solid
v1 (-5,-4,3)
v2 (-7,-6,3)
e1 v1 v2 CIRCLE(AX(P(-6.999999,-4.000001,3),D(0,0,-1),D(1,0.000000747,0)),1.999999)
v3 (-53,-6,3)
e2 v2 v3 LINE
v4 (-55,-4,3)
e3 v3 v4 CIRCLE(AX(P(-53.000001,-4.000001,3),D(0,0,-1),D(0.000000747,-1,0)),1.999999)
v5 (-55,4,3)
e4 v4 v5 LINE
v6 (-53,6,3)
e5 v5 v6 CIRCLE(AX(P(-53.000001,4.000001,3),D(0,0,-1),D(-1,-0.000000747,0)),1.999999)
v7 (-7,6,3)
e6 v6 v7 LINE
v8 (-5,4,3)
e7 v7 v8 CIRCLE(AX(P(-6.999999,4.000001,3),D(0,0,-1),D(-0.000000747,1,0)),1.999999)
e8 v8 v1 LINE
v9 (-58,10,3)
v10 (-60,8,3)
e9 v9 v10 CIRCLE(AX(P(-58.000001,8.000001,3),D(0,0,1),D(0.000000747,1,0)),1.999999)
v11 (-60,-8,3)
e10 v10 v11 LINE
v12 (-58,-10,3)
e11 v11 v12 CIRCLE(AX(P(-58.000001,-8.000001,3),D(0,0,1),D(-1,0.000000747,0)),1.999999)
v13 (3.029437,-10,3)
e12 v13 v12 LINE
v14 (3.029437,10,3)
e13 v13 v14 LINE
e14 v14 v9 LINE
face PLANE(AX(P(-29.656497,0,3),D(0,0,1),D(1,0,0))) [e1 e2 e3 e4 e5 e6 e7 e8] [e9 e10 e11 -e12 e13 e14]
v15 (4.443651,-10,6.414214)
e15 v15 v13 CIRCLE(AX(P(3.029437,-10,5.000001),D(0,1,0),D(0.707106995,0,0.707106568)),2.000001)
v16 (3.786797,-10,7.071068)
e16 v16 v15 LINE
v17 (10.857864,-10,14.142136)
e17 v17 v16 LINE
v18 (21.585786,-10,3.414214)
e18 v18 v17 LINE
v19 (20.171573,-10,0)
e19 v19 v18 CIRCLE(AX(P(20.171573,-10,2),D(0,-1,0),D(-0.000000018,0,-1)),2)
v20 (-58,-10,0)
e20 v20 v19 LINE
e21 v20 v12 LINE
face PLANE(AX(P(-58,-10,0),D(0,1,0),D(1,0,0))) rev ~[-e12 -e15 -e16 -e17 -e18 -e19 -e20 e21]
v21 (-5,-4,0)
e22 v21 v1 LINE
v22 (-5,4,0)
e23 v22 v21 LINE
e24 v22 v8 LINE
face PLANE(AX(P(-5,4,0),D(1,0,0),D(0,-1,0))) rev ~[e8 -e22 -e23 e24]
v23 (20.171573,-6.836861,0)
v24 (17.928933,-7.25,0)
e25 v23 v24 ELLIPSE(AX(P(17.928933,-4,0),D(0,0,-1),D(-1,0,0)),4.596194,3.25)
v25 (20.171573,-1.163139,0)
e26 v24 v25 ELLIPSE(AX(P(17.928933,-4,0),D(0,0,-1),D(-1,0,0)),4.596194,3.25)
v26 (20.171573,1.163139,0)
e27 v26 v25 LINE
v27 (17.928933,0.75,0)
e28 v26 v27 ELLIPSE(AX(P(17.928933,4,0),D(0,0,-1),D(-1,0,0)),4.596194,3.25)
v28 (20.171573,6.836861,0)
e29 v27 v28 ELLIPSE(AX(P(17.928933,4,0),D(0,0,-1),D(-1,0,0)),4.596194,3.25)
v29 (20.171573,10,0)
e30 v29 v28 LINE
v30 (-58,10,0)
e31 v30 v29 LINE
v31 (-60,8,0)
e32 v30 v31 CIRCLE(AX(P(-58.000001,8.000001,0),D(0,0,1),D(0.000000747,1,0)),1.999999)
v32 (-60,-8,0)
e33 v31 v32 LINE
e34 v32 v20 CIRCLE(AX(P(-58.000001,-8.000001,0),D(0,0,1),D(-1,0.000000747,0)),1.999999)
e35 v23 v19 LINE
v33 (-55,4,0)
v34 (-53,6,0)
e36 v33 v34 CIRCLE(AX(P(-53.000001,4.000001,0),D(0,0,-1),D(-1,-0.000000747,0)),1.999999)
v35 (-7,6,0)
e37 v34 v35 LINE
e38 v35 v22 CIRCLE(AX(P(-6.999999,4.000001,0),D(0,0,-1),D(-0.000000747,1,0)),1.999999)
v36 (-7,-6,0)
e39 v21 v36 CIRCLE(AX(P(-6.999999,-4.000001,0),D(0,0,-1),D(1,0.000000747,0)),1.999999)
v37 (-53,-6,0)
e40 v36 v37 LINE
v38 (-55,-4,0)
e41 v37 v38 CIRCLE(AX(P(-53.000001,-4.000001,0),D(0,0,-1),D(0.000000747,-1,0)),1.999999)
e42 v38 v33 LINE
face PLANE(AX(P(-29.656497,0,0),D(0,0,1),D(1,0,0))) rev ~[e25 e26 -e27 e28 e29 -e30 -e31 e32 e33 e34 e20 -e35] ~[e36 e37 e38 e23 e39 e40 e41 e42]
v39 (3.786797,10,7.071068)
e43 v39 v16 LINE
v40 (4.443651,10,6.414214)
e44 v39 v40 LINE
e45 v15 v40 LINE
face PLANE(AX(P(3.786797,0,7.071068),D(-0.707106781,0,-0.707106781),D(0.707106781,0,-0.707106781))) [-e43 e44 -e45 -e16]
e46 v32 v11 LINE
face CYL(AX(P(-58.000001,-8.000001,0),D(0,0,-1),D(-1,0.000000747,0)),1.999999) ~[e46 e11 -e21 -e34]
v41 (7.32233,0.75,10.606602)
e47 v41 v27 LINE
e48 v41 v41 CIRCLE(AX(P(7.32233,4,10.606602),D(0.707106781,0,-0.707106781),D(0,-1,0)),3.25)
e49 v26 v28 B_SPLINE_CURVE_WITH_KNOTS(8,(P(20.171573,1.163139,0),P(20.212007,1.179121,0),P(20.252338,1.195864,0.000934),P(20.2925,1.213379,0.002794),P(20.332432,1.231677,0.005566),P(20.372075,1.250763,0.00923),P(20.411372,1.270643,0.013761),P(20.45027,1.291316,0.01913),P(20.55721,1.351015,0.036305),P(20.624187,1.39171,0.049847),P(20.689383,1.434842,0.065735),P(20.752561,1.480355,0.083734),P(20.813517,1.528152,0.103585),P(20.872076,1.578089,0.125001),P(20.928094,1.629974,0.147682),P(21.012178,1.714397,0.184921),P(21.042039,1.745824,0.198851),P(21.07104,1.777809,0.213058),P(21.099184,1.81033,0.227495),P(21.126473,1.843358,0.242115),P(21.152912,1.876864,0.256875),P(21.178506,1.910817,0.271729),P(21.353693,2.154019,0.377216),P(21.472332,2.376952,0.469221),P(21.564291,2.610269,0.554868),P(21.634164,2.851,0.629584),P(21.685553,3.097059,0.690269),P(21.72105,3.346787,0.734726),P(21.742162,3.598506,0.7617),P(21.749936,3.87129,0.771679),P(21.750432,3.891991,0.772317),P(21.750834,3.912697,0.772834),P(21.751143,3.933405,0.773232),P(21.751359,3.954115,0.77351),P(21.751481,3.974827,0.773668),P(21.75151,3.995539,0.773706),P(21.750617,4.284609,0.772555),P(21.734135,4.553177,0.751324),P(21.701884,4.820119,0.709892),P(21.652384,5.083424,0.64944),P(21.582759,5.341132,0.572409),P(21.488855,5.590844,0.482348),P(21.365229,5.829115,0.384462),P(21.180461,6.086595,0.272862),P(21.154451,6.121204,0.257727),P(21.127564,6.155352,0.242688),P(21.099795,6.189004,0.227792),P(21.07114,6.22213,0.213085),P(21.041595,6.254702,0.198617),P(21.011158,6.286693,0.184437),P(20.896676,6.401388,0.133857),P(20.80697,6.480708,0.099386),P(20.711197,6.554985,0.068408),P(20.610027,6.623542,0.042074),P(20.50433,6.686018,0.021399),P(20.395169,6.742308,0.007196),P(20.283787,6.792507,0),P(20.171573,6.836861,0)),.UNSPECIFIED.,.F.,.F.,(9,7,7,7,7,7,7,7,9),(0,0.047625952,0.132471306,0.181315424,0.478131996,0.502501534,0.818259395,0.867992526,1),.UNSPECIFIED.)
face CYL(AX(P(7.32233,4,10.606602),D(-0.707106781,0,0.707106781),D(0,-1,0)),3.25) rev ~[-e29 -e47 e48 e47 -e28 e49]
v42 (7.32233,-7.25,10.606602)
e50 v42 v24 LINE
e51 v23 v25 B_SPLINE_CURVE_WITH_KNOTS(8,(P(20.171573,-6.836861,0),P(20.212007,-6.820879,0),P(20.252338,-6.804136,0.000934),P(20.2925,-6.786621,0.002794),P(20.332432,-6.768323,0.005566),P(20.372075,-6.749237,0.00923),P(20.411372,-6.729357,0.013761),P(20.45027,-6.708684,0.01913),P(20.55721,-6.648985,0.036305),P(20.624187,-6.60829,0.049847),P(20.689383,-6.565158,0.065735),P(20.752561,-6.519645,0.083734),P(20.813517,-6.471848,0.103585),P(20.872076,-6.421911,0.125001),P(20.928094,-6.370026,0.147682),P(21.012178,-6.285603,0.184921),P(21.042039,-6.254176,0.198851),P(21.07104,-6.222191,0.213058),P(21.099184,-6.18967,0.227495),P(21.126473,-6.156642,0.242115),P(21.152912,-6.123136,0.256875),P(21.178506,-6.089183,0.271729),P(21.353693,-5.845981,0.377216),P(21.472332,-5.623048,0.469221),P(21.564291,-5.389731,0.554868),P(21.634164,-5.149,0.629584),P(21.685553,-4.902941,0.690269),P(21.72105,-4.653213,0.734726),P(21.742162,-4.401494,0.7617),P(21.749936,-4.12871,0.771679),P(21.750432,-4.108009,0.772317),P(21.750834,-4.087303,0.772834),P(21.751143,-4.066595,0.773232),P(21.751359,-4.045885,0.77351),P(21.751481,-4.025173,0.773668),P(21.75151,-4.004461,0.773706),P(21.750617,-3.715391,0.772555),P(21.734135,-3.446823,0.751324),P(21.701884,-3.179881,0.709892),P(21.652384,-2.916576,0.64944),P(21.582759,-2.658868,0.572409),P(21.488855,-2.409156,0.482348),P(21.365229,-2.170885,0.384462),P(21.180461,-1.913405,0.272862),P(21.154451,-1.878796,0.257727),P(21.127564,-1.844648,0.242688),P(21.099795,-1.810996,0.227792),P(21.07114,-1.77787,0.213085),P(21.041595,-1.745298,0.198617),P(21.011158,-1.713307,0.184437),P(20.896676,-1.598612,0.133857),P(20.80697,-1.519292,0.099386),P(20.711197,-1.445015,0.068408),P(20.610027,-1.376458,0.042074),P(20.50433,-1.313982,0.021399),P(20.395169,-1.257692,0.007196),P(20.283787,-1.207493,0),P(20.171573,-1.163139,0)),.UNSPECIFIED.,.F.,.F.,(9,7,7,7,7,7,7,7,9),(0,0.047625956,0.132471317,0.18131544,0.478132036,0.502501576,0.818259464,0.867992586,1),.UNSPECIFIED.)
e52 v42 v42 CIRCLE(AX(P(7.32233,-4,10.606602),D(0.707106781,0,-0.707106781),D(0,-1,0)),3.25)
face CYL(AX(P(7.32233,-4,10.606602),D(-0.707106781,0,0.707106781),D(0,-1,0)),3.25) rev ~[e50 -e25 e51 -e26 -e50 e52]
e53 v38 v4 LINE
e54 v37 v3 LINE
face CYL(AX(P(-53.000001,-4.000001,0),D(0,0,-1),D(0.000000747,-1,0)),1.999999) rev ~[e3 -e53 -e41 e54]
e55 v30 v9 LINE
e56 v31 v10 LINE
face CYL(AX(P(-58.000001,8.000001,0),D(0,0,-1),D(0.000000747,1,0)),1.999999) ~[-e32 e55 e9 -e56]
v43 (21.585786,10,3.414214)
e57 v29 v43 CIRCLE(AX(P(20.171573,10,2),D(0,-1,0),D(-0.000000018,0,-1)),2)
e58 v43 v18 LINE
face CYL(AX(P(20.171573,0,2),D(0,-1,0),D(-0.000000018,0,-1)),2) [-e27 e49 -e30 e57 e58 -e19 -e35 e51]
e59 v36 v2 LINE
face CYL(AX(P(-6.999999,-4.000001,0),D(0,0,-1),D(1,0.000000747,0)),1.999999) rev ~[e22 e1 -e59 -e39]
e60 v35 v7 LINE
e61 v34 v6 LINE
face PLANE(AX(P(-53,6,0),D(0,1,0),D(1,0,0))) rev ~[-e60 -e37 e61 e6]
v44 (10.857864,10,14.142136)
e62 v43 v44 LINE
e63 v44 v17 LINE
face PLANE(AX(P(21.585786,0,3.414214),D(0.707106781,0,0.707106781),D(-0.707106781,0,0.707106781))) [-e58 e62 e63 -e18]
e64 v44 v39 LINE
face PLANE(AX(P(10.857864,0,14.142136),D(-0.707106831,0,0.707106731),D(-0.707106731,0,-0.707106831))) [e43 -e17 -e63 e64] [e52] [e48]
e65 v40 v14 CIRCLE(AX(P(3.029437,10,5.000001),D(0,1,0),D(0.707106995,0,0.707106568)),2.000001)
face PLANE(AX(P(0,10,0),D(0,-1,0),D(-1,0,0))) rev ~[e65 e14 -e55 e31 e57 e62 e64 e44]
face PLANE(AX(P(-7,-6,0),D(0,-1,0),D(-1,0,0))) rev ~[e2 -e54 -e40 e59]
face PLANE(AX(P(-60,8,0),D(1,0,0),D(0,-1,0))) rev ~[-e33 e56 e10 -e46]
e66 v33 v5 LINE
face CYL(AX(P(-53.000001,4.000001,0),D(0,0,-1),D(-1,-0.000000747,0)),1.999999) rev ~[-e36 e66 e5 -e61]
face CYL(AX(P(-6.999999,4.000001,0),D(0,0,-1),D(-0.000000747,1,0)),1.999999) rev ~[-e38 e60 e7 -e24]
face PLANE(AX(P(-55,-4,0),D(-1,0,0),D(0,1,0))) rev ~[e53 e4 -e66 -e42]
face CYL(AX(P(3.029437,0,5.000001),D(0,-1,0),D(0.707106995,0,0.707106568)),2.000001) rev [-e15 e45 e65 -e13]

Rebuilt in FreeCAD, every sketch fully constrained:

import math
import FreeCAD as App
import Part
import Sketcher
Q = App.Units.Quantity

doc = App.newDocument("Part")
body = doc.addObject("PartDesign::Body", "Body")

sketch1 = doc.addObject("Sketcher::SketchObject", "Sketch")
body.addObject(sketch1)
sketch1.AttachmentSupport = (doc.XZ_Plane, [""])
sketch1.MapMode = "FlatFace"
sketch1.addGeometry([
    Part.LineSegment(App.Vector(0, 3, 0), App.Vector(0, 0, 0)),
    Part.LineSegment(App.Vector(0, 0, 0), App.Vector(20.171573, 0, 0)),
    Part.ArcOfCircle(Part.Circle(App.Vector(20.171573, 2, 0), App.Vector(0, 0, 1), 2), math.radians(-90.000001), math.radians(45.000022)),
    Part.LineSegment(App.Vector(21.585786, 3.414214, 0), App.Vector(10.857864, 14.142136, 0)),
    Part.LineSegment(App.Vector(10.857864, 14.142136, 0), App.Vector(3.786797, 7.071068, 0)),
    Part.LineSegment(App.Vector(3.786797, 7.071068, 0), App.Vector(4.443651, 6.414214, 0)),
    Part.ArcOfCircle(Part.Circle(App.Vector(3.029437, 5.000001, 0), App.Vector(0, 0, 1), 2.000001), math.radians(-89.99999), math.radians(44.999983)),
    Part.LineSegment(App.Vector(3.029437, 3, 0), App.Vector(0, 3, 0)),
], False)
sketch1.addConstraint([
    Sketcher.Constraint("Coincident", 0, 2, 1, 1),
    Sketcher.Constraint("Tangent", 1, 2, 2, 1),
    Sketcher.Constraint("Tangent", 2, 2, 3, 1),
    Sketcher.Constraint("Coincident", 3, 2, 4, 1),
    Sketcher.Constraint("Coincident", 4, 2, 5, 1),
    Sketcher.Constraint("Tangent", 5, 2, 6, 2),
    Sketcher.Constraint("Tangent", 6, 1, 7, 1),
    Sketcher.Constraint("Coincident", 7, 2, 0, 1),
    Sketcher.Constraint("Vertical", 0),
    Sketcher.Constraint("Horizontal", 1),
    Sketcher.Constraint("Horizontal", 7),
    Sketcher.Constraint("Coincident", 0, 2, -1, 1),
    Sketcher.Constraint("Equal", 2, 6),
    Sketcher.Constraint("Perpendicular", 3, 4),
    Sketcher.Constraint("Perpendicular", 4, 5),
    Sketcher.Constraint("Radius", 2, 2.0),
    Sketcher.Constraint("DistanceY", 0, 2, 0, 1, 3.0),
    Sketcher.Constraint("Angle", 3, Q("135 deg")),
    Sketcher.Constraint("Distance", 4, 10.0),
    Sketcher.Constraint("Distance", 5, 0.928932),
    Sketcher.Constraint("DistanceX", 1, 1, 1, 2, 20.171573),
])
pad1 = doc.addObject("PartDesign::Pad", "Pad")
body.addObject(pad1)
pad1.Profile = sketch1
pad1.Length = 20
pad1.Midplane = True

sketch2 = doc.addObject("Sketcher::SketchObject", "Sketch001")
body.addObject(sketch2)
sketch2.Placement = App.Placement(App.Vector(-1.642136, 0, 1.642136), App.Rotation(App.Vector(0, -1, 0), App.Vector(0.707106781, 0, 0.707106781), App.Vector(-0.707106781, 0, 0.707106781), "ZXY"))
sketch2.addGeometry([
    Part.Circle(App.Vector(-4, 12.67767, 0), App.Vector(0, 0, 1), 3.25),
    Part.Circle(App.Vector(4, 12.67767, 0), App.Vector(0, 0, 1), 3.25),
], False)
sketch2.addConstraint([
    Sketcher.Constraint("Equal", 0, 1),
    Sketcher.Constraint("Symmetric", 0, 3, 1, 3, -2),
    Sketcher.Constraint("Diameter", 0, 6.5),
    Sketcher.Constraint("DistanceX", 0, 3, -1, 1, 4.0),
    Sketcher.Constraint("DistanceY", -1, 1, 0, 3, 12.67767),
])
pocket1 = doc.addObject("PartDesign::Pocket", "Pocket")
body.addObject(pocket1)
pocket1.Profile = sketch2
pocket1.Length = 25

sketch3 = doc.addObject("Sketcher::SketchObject", "Sketch002")
body.addObject(sketch3)
sketch3.AttachmentSupport = (doc.XY_Plane, [""])
sketch3.MapMode = "FlatFace"
sketch3.addGeometry([
    Part.LineSegment(App.Vector(0, -10, 0), App.Vector(0, 10, 0)),
    Part.LineSegment(App.Vector(0, 10, 0), App.Vector(-58, 10, 0)),
    Part.ArcOfCircle(Part.Circle(App.Vector(-58.000001, 8.000001, 0), App.Vector(0, 0, 1), 1.999999), math.radians(89.999957), math.radians(180.000043)),
    Part.LineSegment(App.Vector(-60, 8, 0), App.Vector(-60, -8, 0)),
    Part.ArcOfCircle(Part.Circle(App.Vector(-58.000001, -8.000001, 0), App.Vector(0, 0, 1), 1.999999), math.radians(179.999957), math.radians(270.000043)),
    Part.LineSegment(App.Vector(-58, -10, 0), App.Vector(0, -10, 0)),
    Part.ArcOfCircle(Part.Circle(App.Vector(-53.000001, 4.000001, 0), App.Vector(0, 0, 1), 1.999999), math.radians(89.999957), math.radians(180.000043)),
    Part.LineSegment(App.Vector(-53, 6, 0), App.Vector(-7, 6, 0)),
    Part.ArcOfCircle(Part.Circle(App.Vector(-6.999999, 4.000001, 0), App.Vector(0, 0, 1), 1.999999), math.radians(-0.000043), math.radians(90.000043)),
    Part.LineSegment(App.Vector(-5, 4, 0), App.Vector(-5, -4, 0)),
    Part.ArcOfCircle(Part.Circle(App.Vector(-6.999999, -4.000001, 0), App.Vector(0, 0, 1), 1.999999), math.radians(-90.000043), math.radians(0.000043)),
    Part.LineSegment(App.Vector(-7, -6, 0), App.Vector(-53, -6, 0)),
    Part.ArcOfCircle(Part.Circle(App.Vector(-53.000001, -4.000001, 0), App.Vector(0, 0, 1), 1.999999), math.radians(179.999957), math.radians(270.000043)),
    Part.LineSegment(App.Vector(-55, -4, 0), App.Vector(-55, 4, 0)),
], False)
sketch3.addConstraint([
    Sketcher.Constraint("Coincident", 0, 2, 1, 1),
    Sketcher.Constraint("Tangent", 1, 2, 2, 1),
    Sketcher.Constraint("Tangent", 2, 2, 3, 1),
    Sketcher.Constraint("Tangent", 3, 2, 4, 1),
    Sketcher.Constraint("Tangent", 4, 2, 5, 1),
    Sketcher.Constraint("Coincident", 5, 2, 0, 1),
    Sketcher.Constraint("Tangent", 6, 1, 7, 1),
    Sketcher.Constraint("Tangent", 7, 2, 8, 2),
    Sketcher.Constraint("Tangent", 8, 1, 9, 1),
    Sketcher.Constraint("Tangent", 9, 2, 10, 2),
    Sketcher.Constraint("Tangent", 10, 1, 11, 1),
    Sketcher.Constraint("Tangent", 11, 2, 12, 2),
    Sketcher.Constraint("Tangent", 12, 1, 13, 1),
    Sketcher.Constraint("Tangent", 13, 2, 6, 2),
    Sketcher.Constraint("Vertical", 0),
    Sketcher.Constraint("Horizontal", 1),
    Sketcher.Constraint("Vertical", 3),
    Sketcher.Constraint("Horizontal", 5),
    Sketcher.Constraint("Horizontal", 7),
    Sketcher.Constraint("Vertical", 9),
    Sketcher.Constraint("Horizontal", 11),
    Sketcher.Constraint("Vertical", 13),
    Sketcher.Constraint("Equal", 2, 4),
    Sketcher.Constraint("Equal", 4, 6),
    Sketcher.Constraint("Equal", 6, 8),
    Sketcher.Constraint("Equal", 8, 10),
    Sketcher.Constraint("Equal", 10, 12),
    Sketcher.Constraint("Symmetric", 0, 2, 5, 2, -1, 1),
    Sketcher.Constraint("Radius", 2, 1.999999),
    Sketcher.Constraint("DistanceX", 1, 2, 1, 1, 58.0),
    Sketcher.Constraint("DistanceX", 7, 1, 7, 2, 46.0),
    Sketcher.Constraint("DistanceY", 0, 1, 0, 2, 20.0),
    Sketcher.Constraint("DistanceY", 9, 2, 9, 1, 8.0),
    Sketcher.Constraint("DistanceX", 6, 3, -1, 1, 53.000001),
    Sketcher.Constraint("DistanceY", -1, 1, 6, 3, 4.000001),
])
pad2 = doc.addObject("PartDesign::Pad", "Pad001")
body.addObject(pad2)
pad2.Profile = sketch3
pad2.Length = 3

doc.recompute()
